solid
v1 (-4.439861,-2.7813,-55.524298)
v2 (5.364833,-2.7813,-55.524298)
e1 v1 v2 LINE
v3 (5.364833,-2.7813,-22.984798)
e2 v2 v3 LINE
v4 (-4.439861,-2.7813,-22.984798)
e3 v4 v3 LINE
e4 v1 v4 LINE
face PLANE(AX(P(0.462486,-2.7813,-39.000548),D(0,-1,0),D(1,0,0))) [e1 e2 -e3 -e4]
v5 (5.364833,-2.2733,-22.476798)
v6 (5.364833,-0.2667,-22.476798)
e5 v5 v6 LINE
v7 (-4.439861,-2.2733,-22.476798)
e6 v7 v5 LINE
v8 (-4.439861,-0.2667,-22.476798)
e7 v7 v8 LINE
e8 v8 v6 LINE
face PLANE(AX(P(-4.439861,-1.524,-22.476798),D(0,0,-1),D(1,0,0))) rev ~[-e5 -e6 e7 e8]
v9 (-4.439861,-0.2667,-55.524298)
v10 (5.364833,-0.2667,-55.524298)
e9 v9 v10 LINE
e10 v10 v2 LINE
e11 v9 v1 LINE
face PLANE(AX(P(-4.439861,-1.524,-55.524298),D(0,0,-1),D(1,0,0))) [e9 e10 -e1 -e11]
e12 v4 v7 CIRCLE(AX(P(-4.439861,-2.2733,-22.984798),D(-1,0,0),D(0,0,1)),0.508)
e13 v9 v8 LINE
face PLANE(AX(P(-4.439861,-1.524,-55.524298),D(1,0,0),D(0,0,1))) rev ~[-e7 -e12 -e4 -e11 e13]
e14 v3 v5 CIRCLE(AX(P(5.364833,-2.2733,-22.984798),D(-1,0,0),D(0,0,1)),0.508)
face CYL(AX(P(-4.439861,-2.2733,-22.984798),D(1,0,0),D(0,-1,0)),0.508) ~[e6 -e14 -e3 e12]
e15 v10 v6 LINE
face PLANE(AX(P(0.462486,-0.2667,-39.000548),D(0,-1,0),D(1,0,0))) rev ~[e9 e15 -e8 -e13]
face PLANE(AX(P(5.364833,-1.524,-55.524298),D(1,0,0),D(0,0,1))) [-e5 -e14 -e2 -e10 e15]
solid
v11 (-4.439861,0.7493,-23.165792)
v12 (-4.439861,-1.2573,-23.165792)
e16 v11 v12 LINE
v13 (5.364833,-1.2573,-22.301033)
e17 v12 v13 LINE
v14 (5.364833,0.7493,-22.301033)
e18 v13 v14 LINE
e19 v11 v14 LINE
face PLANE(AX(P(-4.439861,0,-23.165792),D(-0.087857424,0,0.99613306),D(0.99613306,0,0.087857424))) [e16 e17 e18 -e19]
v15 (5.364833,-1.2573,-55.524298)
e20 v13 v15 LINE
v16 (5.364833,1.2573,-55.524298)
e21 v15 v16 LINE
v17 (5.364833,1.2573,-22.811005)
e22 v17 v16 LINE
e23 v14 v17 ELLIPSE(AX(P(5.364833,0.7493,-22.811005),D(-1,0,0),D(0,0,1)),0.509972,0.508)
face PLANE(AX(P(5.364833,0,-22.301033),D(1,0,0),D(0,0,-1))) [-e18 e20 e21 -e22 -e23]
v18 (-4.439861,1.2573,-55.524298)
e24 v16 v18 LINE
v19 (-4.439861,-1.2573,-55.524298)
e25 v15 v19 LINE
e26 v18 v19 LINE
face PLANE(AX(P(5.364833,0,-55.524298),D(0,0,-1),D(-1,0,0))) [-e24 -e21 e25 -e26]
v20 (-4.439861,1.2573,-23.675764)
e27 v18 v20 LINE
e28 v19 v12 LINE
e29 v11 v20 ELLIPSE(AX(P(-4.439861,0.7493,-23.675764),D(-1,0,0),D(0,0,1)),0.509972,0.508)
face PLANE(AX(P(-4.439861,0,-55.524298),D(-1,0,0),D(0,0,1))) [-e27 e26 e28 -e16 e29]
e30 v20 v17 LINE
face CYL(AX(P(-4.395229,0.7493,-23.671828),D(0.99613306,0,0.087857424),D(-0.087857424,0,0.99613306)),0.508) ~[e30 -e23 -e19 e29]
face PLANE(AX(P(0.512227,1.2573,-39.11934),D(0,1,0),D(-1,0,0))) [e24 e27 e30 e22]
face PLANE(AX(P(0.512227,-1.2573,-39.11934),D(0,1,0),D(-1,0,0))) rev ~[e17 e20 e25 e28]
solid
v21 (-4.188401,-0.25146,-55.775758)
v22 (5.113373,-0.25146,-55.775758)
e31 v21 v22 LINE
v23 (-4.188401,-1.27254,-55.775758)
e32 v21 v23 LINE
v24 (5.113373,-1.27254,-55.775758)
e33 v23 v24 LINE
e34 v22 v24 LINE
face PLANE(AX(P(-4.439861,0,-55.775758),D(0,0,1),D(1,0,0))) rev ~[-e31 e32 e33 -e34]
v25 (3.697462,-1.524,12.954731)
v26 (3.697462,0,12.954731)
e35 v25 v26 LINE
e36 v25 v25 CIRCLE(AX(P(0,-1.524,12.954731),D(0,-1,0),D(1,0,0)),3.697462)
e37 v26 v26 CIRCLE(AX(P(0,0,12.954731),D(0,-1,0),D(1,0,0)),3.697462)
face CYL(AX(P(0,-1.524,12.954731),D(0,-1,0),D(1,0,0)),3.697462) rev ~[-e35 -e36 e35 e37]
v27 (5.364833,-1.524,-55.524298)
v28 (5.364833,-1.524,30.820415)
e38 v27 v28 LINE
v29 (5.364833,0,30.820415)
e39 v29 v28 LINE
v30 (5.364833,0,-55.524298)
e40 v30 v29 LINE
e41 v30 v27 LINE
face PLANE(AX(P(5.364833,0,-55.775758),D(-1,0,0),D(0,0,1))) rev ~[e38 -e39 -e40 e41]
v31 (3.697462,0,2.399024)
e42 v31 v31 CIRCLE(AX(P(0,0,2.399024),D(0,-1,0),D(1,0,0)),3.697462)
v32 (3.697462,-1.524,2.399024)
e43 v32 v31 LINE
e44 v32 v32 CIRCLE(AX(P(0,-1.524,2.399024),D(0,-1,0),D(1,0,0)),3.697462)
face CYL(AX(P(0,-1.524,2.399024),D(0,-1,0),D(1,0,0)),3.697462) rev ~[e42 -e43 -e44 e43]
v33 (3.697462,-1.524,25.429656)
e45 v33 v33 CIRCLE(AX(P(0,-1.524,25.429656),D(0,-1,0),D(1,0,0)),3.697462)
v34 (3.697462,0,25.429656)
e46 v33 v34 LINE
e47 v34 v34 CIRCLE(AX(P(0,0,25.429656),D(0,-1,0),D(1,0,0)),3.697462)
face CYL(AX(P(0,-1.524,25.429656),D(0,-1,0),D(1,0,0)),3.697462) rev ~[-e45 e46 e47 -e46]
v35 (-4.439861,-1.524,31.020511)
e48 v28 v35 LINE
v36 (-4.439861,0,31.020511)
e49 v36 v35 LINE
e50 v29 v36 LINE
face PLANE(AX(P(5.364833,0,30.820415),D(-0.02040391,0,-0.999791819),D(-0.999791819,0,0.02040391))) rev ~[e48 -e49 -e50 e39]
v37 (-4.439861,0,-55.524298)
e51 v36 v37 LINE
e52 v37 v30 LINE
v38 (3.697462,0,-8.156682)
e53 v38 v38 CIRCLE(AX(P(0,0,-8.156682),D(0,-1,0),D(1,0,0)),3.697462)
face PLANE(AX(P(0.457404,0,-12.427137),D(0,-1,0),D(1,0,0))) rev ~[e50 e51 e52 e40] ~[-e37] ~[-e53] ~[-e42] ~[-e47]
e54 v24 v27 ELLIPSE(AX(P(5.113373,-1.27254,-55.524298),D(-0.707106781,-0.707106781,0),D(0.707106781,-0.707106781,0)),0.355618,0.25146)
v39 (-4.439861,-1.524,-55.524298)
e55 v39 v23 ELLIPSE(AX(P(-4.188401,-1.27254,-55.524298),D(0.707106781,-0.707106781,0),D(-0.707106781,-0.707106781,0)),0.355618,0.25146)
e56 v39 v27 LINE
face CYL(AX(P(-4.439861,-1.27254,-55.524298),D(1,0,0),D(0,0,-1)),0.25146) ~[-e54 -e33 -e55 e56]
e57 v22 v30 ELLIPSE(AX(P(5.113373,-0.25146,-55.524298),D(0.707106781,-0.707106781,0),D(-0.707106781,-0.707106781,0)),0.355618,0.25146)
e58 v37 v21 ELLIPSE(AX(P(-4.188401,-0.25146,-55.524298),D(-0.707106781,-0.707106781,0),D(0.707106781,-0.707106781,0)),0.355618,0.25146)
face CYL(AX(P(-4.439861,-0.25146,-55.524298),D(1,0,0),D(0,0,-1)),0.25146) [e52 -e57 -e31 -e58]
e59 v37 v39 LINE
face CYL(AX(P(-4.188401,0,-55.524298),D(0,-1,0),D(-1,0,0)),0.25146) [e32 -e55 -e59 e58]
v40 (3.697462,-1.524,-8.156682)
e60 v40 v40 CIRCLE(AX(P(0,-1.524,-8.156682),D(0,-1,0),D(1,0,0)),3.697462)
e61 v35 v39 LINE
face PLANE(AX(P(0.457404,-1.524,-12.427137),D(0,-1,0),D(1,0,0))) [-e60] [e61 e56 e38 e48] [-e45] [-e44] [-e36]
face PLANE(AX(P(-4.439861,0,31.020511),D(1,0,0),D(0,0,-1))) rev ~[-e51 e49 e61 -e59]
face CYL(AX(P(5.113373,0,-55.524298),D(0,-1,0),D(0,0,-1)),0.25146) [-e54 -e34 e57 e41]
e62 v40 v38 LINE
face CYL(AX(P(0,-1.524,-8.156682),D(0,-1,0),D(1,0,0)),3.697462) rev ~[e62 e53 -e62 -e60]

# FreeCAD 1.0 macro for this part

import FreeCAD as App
import Part
import Sketcher

V = App.Vector
Q = App.Units.Quantity


def edges_at(feature, points):
    """Names of the edges that pass closest to the given points."""
    edges = feature.Shape.Edges
    near = lambda p: min(range(len(edges)), key=lambda i: edges[i].distToShape(Part.Vertex(*p))[0])
    return sorted({f"Edge{near(p) + 1}" for p in points})


def add_polygon(sketch, points):
    """Adds a closed chain of lines whose ends are joined by coincident constraints."""
    first, n = sketch.GeometryCount, len(points)
    for a, b in zip(points, points[1:] + points[:1]):
        sketch.addGeometry(Part.LineSegment(App.Vector(*a, 0), App.Vector(*b, 0)), False)
    for i in range(n):
        sketch.addConstraint(Sketcher.Constraint("Coincident", first + i, 2, first + (i + 1) % n, 1))

doc = App.newDocument("Part")
body = doc.addObject("PartDesign::Body", "Body")

# Sketch on XZ plane
sketch1 = body.newObject("Sketcher::SketchObject", "Sketch")
sketch1.AttachmentSupport = (doc.getObject("XZ_Plane"), [""])
sketch1.MapMode = "FlatFace"
add_polygon(sketch1, [(5, 31), (-4, 31), (-4, -56), (5, -56)])  # lines 0-3
sketch1.addConstraint([
    Sketcher.Constraint("Vertical", 1),
    Sketcher.Constraint("Horizontal", 2),
    Sketcher.Constraint("Vertical", 3),
    Sketcher.Constraint("DistanceY", 1, 2, 1, 1, 86.796269),
    Sketcher.Constraint("DistanceX", 2, 1, 2, 2, 9.804694),
    Sketcher.Constraint("DistanceY", 3, 1, 3, 2, 86.596173),
    Sketcher.Constraint("DistanceX", 0, 2, -1, 1, 4.439861),
    Sketcher.Constraint("DistanceY", -1, 1, 0, 2, 31.020511),
])
pad1 = body.newObject("PartDesign::Pad", "Pad")
pad1.Profile = sketch1
pad1.Length = Q("0.06 in")
doc.recompute()

fillet = body.newObject("PartDesign::Fillet", "Fillet")
fillet.Base = (pad1, edges_at(pad1, [
    (-4.44, -0.762, -55.776),
    (5.365, -0.762, -55.776),
    (0.462, 0, -55.776),
    (0.462, -1.524, -55.776),
]))
fillet.Radius = Q("0.0099 in")

# Sketch on XZ plane
sketch2 = body.newObject("Sketcher::SketchObject", "Sketch001")
sketch2.AttachmentSupport = (doc.getObject("XZ_Plane"), [""])
sketch2.MapMode = "FlatFace"
sketch2.AttachmentOffset = App.Placement(V(0, 0, 0.06 * 25.4), App.Rotation())
sketch2.addGeometry([
    Part.Circle(V(0, 25.4, 0), V(0, 0, 1), 3.7),
    Part.Circle(V(0, 13, 0), V(0, 0, 1), 3.7),
    Part.Circle(V(0, 2.4, 0), V(0, 0, 1), 3.7),
    Part.Circle(V(0, -8.2, 0), V(0, 0, 1), 3.7),
], False)
sketch2.addConstraint([
    Sketcher.Constraint("Equal", 0, 1),
    Sketcher.Constraint("Equal", 1, 2),
    Sketcher.Constraint("Equal", 2, 3),
    Sketcher.Constraint("PointOnObject", 0, 3, -2),
    Sketcher.Constraint("PointOnObject", 1, 3, -2),
    Sketcher.Constraint("PointOnObject", 2, 3, -2),
    Sketcher.Constraint("PointOnObject", 3, 3, -2),
    Sketcher.Constraint("Diameter", 0, 7.394925),
    Sketcher.Constraint("DistanceY", -1, 1, 1, 3, 12.954731),
    Sketcher.Constraint("DistanceY", 3, 3, -1, 1, 8.156682),
    Sketcher.Constraint("DistanceY", 2, 3, 0, 3, 23.030632),
    Sketcher.Constraint("DistanceY", -1, 1, 0, 3, 25.429656),
])
pocket1 = body.newObject("PartDesign::Pocket", "Pocket")
pocket1.Profile = sketch2
pocket1.Type = "ThroughAll"
body2 = doc.addObject("PartDesign::Body", "Body001")

# Sketch on XZ plane
sketch3 = body2.newObject("Sketcher::SketchObject", "Sketch002")
sketch3.AttachmentSupport = (doc.getObject("XZ_Plane001"), [""])
sketch3.MapMode = "FlatFace"
sketch3.AttachmentOffset = App.Placement(V(0, 0, 0.06 * 25.4), App.Rotation())
add_polygon(sketch3, [(-4, -22), (-4, -56), (5, -56), (5, -22)])  # lines 0-3
sketch3.addConstraint([
    Sketcher.Constraint("Vertical", 0),
    Sketcher.Constraint("Horizontal", 1),
    Sketcher.Constraint("Vertical", 2),
    Sketcher.Constraint("Horizontal", 3),
    Sketcher.Constraint("DistanceY", 0, 2, 0, 1, 33.0475),
    Sketcher.Constraint("DistanceX", 1, 1, 1, 2, 9.804694),
    Sketcher.Constraint("DistanceX", 0, 2, -1, 1, 4.439861),
    Sketcher.Constraint("DistanceY", 0, 2, -1, 1, 55.524298),
])
pad2 = body2.newObject("PartDesign::Pad", "Pad001")
pad2.Profile = sketch3
pad2.Length = Q("0.099 in")
pad2.Midplane = True
doc.recompute()

fillet2 = body2.newObject("PartDesign::Fillet", "Fillet001")
fillet2.Base = (pad2, edges_at(pad2, [(0.462, -2.781, -22.477)]))
fillet2.Radius = Q("0.02 in")
body3 = doc.addObject("PartDesign::Body", "Body002")

# Sketch on XZ plane
sketch4 = body3.newObject("Sketcher::SketchObject", "Sketch003")
sketch4.AttachmentSupport = (doc.getObject("XZ_Plane002"), [""])
sketch4.MapMode = "FlatFace"
add_polygon(sketch4, [(-4, -23), (5, -22), (5, -56), (-4, -56)])  # lines 0-3
sketch4.addConstraint([
    Sketcher.Constraint("Vertical", 1),
    Sketcher.Constraint("Horizontal", 2),
    Sketcher.Constraint("Vertical", 3),
    Sketcher.Constraint("DistanceX", 2, 2, 2, 1, 9.804694),
    Sketcher.Constraint("DistanceY", 1, 2, 1, 1, 33.223265),
    Sketcher.Constraint("DistanceY", 3, 1, 3, 2, 32.358506),
    Sketcher.Constraint("DistanceX", 2, 2, -1, 1, 4.439861),
    Sketcher.Constraint("DistanceY", 0, 2, -1, 1, 22.301033),
])
pad3 = body3.newObject("PartDesign::Pad", "Pad002")
pad3.Profile = sketch4
pad3.Length = Q("0.099 in")
pad3.Midplane = True
doc.recompute()

fillet3 = body3.newObject("PartDesign::Fillet", "Fillet002")
fillet3.Base = (pad3, edges_at(pad3, [(0.462, 1.257, -22.733)]))
fillet3.Radius = Q("0.02 in")

doc.recompute()
